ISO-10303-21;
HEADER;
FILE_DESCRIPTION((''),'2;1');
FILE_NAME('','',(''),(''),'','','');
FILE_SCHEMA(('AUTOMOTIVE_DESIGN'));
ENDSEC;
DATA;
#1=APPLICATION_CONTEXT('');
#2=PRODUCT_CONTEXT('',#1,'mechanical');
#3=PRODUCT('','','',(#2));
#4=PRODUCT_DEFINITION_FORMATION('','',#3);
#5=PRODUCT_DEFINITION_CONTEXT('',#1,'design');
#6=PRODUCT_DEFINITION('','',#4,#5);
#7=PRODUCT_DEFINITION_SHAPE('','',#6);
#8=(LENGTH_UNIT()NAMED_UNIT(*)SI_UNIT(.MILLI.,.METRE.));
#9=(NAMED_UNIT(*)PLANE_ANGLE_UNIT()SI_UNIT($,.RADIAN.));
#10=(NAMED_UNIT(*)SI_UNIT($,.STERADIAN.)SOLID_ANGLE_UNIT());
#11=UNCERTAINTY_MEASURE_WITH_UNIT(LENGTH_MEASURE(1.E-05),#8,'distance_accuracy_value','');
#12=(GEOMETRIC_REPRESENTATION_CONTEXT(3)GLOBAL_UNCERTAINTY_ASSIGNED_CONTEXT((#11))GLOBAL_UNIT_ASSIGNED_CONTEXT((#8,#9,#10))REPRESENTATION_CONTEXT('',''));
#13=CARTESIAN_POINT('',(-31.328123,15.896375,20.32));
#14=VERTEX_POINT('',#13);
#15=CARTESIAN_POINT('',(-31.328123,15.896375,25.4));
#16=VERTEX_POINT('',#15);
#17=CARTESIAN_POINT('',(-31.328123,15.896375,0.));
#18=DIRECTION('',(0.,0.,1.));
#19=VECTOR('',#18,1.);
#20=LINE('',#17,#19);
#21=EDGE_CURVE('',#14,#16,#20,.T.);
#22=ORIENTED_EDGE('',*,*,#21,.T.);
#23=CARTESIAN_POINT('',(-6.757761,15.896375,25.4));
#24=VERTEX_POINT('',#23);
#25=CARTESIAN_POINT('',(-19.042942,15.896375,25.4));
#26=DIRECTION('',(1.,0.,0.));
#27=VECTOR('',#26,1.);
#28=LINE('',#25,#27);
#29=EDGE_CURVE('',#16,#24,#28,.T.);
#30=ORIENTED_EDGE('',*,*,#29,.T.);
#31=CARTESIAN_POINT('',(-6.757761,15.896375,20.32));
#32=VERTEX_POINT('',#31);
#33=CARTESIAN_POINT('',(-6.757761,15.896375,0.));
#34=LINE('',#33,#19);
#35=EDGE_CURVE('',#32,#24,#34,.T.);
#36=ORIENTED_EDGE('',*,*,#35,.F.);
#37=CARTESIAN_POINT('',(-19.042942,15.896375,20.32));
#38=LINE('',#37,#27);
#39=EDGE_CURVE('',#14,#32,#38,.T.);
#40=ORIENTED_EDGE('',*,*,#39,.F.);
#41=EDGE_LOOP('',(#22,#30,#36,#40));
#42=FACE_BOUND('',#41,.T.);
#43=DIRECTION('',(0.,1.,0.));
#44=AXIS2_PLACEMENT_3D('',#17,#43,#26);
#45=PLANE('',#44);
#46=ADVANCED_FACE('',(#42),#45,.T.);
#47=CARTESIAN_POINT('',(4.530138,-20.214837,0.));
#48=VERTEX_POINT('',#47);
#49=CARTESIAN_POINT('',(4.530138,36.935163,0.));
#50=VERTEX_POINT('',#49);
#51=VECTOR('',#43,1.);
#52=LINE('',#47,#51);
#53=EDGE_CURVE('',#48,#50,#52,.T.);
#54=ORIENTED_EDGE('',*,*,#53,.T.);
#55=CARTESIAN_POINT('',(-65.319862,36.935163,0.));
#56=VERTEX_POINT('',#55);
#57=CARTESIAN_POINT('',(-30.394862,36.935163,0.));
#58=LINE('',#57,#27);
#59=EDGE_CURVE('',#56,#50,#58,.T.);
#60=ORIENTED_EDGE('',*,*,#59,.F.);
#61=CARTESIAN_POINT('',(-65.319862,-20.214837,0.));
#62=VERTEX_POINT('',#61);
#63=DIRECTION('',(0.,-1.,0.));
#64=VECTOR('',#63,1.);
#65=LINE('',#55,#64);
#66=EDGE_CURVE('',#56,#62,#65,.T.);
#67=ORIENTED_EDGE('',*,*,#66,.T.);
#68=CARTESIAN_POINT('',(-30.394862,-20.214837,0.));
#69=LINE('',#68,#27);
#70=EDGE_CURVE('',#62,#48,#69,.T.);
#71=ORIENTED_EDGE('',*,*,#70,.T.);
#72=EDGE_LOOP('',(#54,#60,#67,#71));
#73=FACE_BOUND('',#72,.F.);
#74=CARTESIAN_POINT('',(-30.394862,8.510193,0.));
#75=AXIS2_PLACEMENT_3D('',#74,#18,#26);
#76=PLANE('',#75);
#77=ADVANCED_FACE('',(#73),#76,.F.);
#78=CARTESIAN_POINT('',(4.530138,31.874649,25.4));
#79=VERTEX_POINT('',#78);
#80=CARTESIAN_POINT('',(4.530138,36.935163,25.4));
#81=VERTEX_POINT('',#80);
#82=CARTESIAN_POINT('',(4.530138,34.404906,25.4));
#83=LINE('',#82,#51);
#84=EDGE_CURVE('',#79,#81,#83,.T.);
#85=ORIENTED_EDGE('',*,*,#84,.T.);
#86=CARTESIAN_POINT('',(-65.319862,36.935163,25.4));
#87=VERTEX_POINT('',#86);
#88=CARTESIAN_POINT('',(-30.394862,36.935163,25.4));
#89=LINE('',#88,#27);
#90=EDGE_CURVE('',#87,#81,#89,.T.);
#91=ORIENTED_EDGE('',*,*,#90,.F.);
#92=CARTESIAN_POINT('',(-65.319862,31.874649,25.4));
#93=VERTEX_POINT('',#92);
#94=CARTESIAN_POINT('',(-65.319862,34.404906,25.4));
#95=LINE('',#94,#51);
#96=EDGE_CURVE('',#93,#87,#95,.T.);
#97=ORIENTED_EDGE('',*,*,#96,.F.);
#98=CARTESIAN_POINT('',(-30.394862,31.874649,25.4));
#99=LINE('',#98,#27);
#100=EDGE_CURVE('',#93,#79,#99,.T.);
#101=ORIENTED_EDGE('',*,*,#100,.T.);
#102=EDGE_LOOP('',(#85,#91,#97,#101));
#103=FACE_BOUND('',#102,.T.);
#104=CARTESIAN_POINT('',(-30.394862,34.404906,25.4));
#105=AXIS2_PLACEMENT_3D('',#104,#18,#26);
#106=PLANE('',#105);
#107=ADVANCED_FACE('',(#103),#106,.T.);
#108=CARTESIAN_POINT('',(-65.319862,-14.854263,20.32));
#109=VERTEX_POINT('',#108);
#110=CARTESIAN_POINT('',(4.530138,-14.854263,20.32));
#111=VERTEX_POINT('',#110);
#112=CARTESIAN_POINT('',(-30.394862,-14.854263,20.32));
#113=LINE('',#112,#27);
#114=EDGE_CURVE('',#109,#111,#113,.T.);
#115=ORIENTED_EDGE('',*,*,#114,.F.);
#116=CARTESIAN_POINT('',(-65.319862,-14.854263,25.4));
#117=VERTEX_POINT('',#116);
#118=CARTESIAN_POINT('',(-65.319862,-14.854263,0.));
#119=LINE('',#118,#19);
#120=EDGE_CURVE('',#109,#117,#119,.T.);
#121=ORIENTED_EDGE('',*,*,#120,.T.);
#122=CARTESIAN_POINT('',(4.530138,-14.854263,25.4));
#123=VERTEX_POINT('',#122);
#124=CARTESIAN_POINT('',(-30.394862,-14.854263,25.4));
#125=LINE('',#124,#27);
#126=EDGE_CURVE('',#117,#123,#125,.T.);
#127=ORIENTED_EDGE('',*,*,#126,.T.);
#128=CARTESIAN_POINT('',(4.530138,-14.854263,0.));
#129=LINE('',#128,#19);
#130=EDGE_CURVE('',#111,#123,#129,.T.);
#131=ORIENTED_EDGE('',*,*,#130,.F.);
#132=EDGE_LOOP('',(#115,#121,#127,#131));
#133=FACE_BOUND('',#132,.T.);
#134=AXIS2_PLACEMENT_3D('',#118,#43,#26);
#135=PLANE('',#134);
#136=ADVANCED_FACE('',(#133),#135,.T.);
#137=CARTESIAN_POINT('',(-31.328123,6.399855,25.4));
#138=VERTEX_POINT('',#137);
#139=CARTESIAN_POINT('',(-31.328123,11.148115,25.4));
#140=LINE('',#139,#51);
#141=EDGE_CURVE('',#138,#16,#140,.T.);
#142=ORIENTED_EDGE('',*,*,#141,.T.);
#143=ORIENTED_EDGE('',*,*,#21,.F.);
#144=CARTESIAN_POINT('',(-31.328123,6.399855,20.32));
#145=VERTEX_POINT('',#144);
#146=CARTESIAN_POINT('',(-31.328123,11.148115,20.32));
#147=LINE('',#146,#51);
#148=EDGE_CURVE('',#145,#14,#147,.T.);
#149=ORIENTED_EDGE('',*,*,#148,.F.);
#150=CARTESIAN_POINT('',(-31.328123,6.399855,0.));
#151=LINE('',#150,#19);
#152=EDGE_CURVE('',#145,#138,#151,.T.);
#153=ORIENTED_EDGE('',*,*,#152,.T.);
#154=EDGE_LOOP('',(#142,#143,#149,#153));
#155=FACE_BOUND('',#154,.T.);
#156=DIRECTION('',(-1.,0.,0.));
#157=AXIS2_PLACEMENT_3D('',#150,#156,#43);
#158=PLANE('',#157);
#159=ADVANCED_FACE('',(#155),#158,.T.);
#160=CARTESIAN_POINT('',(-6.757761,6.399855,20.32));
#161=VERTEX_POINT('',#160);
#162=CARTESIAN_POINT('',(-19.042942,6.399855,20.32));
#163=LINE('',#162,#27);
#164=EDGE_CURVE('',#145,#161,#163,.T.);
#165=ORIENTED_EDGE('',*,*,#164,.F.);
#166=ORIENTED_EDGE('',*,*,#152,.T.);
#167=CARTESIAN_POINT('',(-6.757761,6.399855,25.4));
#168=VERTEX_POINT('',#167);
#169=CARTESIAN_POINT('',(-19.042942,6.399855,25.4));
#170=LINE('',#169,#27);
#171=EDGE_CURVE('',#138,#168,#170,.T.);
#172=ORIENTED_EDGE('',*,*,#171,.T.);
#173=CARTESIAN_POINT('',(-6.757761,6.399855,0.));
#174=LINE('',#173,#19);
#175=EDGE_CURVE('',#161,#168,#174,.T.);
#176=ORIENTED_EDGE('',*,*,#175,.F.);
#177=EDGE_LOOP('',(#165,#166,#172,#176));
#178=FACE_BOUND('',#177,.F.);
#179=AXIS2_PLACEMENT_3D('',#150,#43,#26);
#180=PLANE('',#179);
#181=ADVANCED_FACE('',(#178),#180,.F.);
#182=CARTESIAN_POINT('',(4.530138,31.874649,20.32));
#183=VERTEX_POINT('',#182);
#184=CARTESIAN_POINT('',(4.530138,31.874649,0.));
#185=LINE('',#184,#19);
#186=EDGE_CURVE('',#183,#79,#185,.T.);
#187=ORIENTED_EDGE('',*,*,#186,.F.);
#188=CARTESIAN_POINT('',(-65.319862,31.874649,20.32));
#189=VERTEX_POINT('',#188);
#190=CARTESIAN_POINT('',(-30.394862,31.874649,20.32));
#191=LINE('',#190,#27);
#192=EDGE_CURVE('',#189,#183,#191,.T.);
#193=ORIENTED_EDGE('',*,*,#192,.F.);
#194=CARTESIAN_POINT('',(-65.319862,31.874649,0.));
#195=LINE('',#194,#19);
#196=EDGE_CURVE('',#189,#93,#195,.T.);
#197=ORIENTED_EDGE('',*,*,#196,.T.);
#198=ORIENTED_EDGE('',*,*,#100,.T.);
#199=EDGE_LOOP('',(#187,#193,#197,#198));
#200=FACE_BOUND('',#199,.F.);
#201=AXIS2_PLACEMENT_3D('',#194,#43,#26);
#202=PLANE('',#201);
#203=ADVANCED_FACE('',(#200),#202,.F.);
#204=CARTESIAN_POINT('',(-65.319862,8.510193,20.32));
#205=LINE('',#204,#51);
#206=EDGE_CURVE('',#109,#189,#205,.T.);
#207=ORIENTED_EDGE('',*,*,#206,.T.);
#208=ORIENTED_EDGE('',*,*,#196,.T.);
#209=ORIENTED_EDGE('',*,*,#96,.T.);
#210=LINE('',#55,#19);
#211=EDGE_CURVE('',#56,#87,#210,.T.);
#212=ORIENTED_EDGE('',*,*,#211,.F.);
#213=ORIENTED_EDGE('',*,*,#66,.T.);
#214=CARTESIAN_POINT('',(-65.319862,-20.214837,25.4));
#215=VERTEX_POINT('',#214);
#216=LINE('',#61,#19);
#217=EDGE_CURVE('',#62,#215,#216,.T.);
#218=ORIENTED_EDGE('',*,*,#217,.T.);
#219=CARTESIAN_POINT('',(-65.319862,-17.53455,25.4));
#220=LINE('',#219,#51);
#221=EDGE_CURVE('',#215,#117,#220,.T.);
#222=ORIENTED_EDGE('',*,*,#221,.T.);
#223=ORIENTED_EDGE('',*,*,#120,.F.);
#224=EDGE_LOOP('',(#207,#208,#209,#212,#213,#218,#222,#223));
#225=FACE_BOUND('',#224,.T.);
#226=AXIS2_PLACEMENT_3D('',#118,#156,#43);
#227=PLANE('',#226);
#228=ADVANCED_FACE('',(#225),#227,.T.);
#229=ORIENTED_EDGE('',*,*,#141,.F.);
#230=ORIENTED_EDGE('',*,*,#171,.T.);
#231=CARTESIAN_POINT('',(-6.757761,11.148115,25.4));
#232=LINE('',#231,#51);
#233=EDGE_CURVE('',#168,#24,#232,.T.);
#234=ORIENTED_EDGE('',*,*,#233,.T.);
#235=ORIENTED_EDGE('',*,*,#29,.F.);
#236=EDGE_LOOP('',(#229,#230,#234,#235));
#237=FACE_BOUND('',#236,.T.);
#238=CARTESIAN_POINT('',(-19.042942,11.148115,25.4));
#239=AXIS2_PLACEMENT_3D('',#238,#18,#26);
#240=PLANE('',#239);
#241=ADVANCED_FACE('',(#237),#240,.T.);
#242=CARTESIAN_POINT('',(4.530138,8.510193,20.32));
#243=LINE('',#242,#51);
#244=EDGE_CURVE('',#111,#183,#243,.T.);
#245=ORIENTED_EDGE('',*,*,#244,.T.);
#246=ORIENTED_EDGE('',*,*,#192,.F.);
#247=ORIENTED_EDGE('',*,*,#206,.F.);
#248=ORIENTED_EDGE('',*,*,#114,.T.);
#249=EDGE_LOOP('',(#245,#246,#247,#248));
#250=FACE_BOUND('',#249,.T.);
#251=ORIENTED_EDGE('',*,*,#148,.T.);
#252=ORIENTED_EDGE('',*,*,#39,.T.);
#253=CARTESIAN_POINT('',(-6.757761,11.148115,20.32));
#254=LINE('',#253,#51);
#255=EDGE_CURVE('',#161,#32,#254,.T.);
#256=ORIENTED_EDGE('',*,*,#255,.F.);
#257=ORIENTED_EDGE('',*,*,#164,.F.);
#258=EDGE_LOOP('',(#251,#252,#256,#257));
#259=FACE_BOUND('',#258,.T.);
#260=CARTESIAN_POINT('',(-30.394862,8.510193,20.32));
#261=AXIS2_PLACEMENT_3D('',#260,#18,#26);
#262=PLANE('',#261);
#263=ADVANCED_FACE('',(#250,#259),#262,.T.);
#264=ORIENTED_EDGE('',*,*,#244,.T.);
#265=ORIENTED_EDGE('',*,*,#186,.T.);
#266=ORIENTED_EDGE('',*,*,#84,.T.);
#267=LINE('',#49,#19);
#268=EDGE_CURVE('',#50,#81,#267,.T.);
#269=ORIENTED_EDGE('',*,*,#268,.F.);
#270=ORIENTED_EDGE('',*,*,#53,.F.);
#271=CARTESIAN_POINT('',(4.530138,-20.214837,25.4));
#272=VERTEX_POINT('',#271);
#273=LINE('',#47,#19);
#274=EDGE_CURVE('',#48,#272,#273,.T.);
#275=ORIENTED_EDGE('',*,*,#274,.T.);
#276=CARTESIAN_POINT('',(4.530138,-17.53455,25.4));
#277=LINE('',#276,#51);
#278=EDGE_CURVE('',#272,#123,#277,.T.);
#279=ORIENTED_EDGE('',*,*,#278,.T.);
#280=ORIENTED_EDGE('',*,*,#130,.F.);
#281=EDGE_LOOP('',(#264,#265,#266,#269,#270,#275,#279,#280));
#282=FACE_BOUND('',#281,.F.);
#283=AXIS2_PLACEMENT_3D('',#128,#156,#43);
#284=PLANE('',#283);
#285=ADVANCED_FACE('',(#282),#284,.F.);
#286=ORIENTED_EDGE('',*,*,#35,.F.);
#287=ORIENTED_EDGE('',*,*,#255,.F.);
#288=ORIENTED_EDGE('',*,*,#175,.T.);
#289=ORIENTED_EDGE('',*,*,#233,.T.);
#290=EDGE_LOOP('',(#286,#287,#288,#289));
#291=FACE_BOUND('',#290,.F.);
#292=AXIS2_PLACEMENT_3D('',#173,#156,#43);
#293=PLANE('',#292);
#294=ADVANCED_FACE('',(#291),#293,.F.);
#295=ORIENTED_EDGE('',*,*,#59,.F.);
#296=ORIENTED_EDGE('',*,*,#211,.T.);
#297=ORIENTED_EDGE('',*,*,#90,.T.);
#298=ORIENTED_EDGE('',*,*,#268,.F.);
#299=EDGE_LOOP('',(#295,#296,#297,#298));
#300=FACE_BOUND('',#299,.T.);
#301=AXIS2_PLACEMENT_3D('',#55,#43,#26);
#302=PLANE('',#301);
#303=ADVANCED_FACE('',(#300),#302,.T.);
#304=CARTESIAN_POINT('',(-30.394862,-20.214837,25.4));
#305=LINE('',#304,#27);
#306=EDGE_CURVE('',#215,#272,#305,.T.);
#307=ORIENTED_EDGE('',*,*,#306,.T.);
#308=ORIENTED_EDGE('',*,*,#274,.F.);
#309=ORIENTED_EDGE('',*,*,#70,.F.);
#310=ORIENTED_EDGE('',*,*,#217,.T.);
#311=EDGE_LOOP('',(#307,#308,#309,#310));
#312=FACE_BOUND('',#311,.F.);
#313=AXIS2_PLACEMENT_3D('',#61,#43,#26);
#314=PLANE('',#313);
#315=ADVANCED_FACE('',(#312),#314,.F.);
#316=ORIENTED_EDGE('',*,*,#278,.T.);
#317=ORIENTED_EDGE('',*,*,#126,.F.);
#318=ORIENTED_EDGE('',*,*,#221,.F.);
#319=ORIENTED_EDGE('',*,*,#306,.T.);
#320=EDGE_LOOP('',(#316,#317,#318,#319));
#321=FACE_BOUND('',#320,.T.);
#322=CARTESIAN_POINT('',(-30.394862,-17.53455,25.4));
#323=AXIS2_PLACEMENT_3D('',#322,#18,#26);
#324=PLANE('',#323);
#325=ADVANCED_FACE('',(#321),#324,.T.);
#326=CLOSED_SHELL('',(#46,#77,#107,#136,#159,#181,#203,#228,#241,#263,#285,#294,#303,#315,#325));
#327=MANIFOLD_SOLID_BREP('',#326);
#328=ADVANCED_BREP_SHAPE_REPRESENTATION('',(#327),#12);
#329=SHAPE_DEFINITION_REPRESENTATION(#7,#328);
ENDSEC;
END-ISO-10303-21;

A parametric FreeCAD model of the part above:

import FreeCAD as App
import Part
import Sketcher

V = App.Vector
Q = App.Units.Quantity


def add_polygon(sketch, points):
    """Adds a closed chain of lines whose ends are joined by coincident constraints."""
    first, n = sketch.GeometryCount, len(points)
    for a, b in zip(points, points[1:] + points[:1]):
        sketch.addGeometry(Part.LineSegment(App.Vector(*a, 0), App.Vector(*b, 0)), False)
    for i in range(n):
        sketch.addConstraint(Sketcher.Constraint("Coincident", first + i, 2, first + (i + 1) % n, 1))

doc = App.newDocument("Part")
params = doc.addObject("Spreadsheet::Sheet", "Params")
for row, (alias, value) in enumerate([
    ("sketch1_width", "2.75 in"),
    ("pad1_length", "0.8 in"),
    ("sketch2_width", "2.75 in"),
    ("pad2_length", "1 in"),
], start=1):
    params.set(f"A{row}", alias)
    params.set(f"B{row}", "=" + value)
    params.setAlias(f"B{row}", alias)

body = doc.addObject("PartDesign::Body", "Body")

# Sketch on XY plane
sketch1 = body.newObject("Sketcher::SketchObject", "Sketch")
sketch1.AttachmentSupport = (doc.getObject("XY_Plane"), [""])
sketch1.MapMode = "FlatFace"
add_polygon(sketch1, [(-65, 32), (-65, -15), (5, -15), (5, 32)])  # lines 0-3
add_polygon(sketch1, [(-7, 6), (-31, 6), (-31, 16), (-7, 16)])  # lines 4-7
sketch1.addConstraint([
    Sketcher.Constraint("Vertical", 0),
    Sketcher.Constraint("Horizontal", 1),
    Sketcher.Constraint("Vertical", 2),
    Sketcher.Constraint("Horizontal", 3),
    Sketcher.Constraint("Horizontal", 4),
    Sketcher.Constraint("Vertical", 5),
    Sketcher.Constraint("Horizontal", 6),
    Sketcher.Constraint("Vertical", 7),
    Sketcher.Constraint("DistanceX", 1, 1, 1, 2, Q("2.75 in")),
    Sketcher.Constraint("DistanceY", 5, 1, 5, 2, Q("9.496521 mm")),
    Sketcher.Constraint("DistanceX", 6, 2, 2, 2, Q("11.287899 mm")),
    Sketcher.Constraint("DistanceX", 4, 2, 4, 1, Q("24.570362 mm")),
    Sketcher.Constraint("DistanceY", 0, 2, 0, 1, Q("46.728912 mm")),
    Sketcher.Constraint("DistanceX", 0, 2, -1, 1, Q("65.319862 mm")),
    Sketcher.Constraint("DistanceY", -1, 1, 2, 2, Q("31.874649 mm")),
    Sketcher.Constraint("DistanceY", 0, 2, 5, 2, Q("30.750639 mm")),
])
sketch1.setExpression("Constraints[16]", "Params.sketch1_width")
pad1 = body.newObject("PartDesign::Pad", "Pad")
pad1.Profile = sketch1
pad1.setExpression("Length", "Params.pad1_length")

# Sketch on XY plane
sketch2 = body.newObject("Sketcher::SketchObject", "Sketch001")
sketch2.AttachmentSupport = (doc.getObject("XY_Plane"), [""])
sketch2.MapMode = "FlatFace"
add_polygon(sketch2, [(-31, 16), (-31, 6), (-7, 6), (-7, 16)])  # lines 0-3
add_polygon(sketch2, [(-65, -15), (-65, -20), (5, -20), (5, -15)])  # lines 4-7
add_polygon(sketch2, [(-65, 37), (-65, 32), (5, 32), (5, 37)])  # lines 8-11
sketch2.addConstraint([
    Sketcher.Constraint("Vertical", 0),
    Sketcher.Constraint("Horizontal", 1),
    Sketcher.Constraint("Vertical", 2),
    Sketcher.Constraint("Horizontal", 3),
    Sketcher.Constraint("Vertical", 4),
    Sketcher.Constraint("Horizontal", 5),
    Sketcher.Constraint("Vertical", 6),
    Sketcher.Constraint("Horizontal", 7),
    Sketcher.Constraint("Vertical", 8),
    Sketcher.Constraint("Horizontal", 9),
    Sketcher.Constraint("Vertical", 10),
    Sketcher.Constraint("Horizontal", 11),
    Sketcher.Constraint("Vertical", 7, 2, 8, 2),
    Sketcher.Constraint("Vertical", 6, 2, 9, 2),
    Sketcher.Constraint("DistanceX", 5, 1, 5, 2, Q("2.75 in")),
    Sketcher.Constraint("DistanceY", 4, 2, 11, 2, Q("2.25 in")),
    Sketcher.Constraint("DistanceY", 0, 2, 0, 1, Q("9.496521 mm")),
    Sketcher.Constraint("DistanceX", 4, 2, 1, 2, Q("58.562101 mm")),
    Sketcher.Constraint("DistanceX", 1, 1, 1, 2, Q("24.570362 mm")),
    Sketcher.Constraint("DistanceY", 4, 2, 4, 1, Q("5.360574 mm")),
    Sketcher.Constraint("DistanceY", 8, 2, 8, 1, Q("5.060514 mm")),
    Sketcher.Constraint("DistanceX", 1, 2, -1, 1, Q("6.757761 mm")),
    Sketcher.Constraint("DistanceY", -1, 1, 8, 2, Q("31.874649 mm")),
    Sketcher.Constraint("DistanceY", 4, 2, 0, 2, Q("26.614691 mm")),
])
sketch2.setExpression("Constraints[26]", "Params.sketch2_width")
pad2 = body.newObject("PartDesign::Pad", "Pad001")
pad2.Profile = sketch2
pad2.setExpression("Length", "Params.pad2_length")

doc.recompute()
